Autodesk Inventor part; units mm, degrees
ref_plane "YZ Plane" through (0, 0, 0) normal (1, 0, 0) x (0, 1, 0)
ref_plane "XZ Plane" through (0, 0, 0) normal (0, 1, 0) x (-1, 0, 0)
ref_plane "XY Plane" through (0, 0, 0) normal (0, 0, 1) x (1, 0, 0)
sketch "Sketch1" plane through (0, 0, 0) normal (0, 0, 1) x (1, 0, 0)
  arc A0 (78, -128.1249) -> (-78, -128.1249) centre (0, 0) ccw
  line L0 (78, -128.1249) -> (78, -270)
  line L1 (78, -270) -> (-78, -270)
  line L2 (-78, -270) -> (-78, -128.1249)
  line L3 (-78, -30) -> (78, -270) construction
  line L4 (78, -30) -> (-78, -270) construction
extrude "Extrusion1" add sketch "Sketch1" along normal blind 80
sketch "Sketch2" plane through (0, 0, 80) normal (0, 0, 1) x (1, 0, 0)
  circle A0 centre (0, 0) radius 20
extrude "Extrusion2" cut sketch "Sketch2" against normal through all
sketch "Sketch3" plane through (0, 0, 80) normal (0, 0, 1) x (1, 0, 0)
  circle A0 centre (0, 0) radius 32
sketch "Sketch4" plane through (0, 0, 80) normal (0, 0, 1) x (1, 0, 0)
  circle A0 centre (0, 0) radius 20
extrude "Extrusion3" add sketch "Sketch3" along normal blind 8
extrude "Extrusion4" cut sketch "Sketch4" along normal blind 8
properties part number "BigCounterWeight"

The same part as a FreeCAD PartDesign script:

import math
import FreeCAD as App
import Part
import Sketcher

V = App.Vector

doc = App.newDocument("Part")
body = doc.addObject("PartDesign::Body", "Body")

sketch1 = body.newObject("Sketcher::SketchObject", "Sketch")
sketch1.AttachmentSupport = (doc.getObject("XY_Plane"), [""])
sketch1.MapMode = "FlatFace"
sketch1.addGeometry([
    Part.LineSegment(V(78, -270, 0), V(78, -128, 0)),
    Part.ArcOfCircle(Part.Circle(V(0, 0, 0), V(0, 0, 1), 150), math.radians(-59), math.radians(239)),
    Part.LineSegment(V(-78, -128, 0), V(-78, -270, 0)),
    Part.LineSegment(V(-78, -270, 0), V(78, -270, 0)),
], False)
sketch1.addConstraint([
    Sketcher.Constraint("Coincident", 0, 2, 1, 1),
    Sketcher.Constraint("Coincident", 1, 2, 2, 1),
    Sketcher.Constraint("Coincident", 2, 2, 3, 1),
    Sketcher.Constraint("Coincident", 3, 2, 0, 1),
    Sketcher.Constraint("Vertical", 0),
    Sketcher.Constraint("Vertical", 2),
    Sketcher.Constraint("Horizontal", 3),
    Sketcher.Constraint("Coincident", 1, 3, -1, 1),
    Sketcher.Constraint("Horizontal", 0, 2, 1, 2),
    Sketcher.Constraint("Radius", 1, 150.0),
    Sketcher.Constraint("DistanceX", 3, 1, 3, 2, 156.0),
    Sketcher.Constraint("DistanceY", 2, 2, -1, 1, 270.0),
])
pad1 = body.newObject("PartDesign::Pad", "Pad")
pad1.Profile = sketch1
pad1.Length = 80

sketch2 = body.newObject("Sketcher::SketchObject", "Sketch001")
sketch2.AttachmentSupport = (doc.getObject("XY_Plane"), [""])
sketch2.MapMode = "FlatFace"
sketch2.AttachmentOffset = App.Placement(V(0, 0, 80), App.Rotation())
sketch2.addGeometry(Part.Circle(V(0, 0, 0), V(0, 0, 1), 20), False)
sketch2.addConstraint([
    Sketcher.Constraint("Coincident", 0, 3, -1, 1),
    Sketcher.Constraint("Diameter", 0, 40.0),
])
pocket1 = body.newObject("PartDesign::Pocket", "Pocket")
pocket1.Profile = sketch2
pocket1.Type = "ThroughAll"

sketch3 = body.newObject("Sketcher::SketchObject", "Sketch002")
sketch3.AttachmentSupport = (doc.getObject("XY_Plane"), [""])
sketch3.MapMode = "FlatFace"
sketch3.AttachmentOffset = App.Placement(V(0, 0, 80), App.Rotation())
sketch3.addGeometry(Part.Circle(V(0, 0, 0), V(0, 0, 1), 32), False)
sketch3.addConstraint([
    Sketcher.Constraint("Coincident", 0, 3, -1, 1),
    Sketcher.Constraint("Diameter", 0, 64.0),
])
pad2 = body.newObject("PartDesign::Pad", "Pad001")
pad2.Profile = sketch3
pad2.Length = 8

sketch4 = body.newObject("Sketcher::SketchObject", "Sketch003")
sketch4.AttachmentSupport = (doc.getObject("XY_Plane"), [""])
sketch4.MapMode = "FlatFace"
sketch4.AttachmentOffset = App.Placement(V(0, 0, 80), App.Rotation())
sketch4.addGeometry(Part.Circle(V(0, 0, 0), V(0, 0, 1), 20), False)
sketch4.addConstraint([
    Sketcher.Constraint("Coincident", 0, 3, -1, 1),
    Sketcher.Constraint("Diameter", 0, 40.0),
])
pocket2 = body.newObject("PartDesign::Pocket", "Pocket001")
pocket2.Profile = sketch4
pocket2.Length = 8
pocket2.Reversed = True

doc.recompute()
